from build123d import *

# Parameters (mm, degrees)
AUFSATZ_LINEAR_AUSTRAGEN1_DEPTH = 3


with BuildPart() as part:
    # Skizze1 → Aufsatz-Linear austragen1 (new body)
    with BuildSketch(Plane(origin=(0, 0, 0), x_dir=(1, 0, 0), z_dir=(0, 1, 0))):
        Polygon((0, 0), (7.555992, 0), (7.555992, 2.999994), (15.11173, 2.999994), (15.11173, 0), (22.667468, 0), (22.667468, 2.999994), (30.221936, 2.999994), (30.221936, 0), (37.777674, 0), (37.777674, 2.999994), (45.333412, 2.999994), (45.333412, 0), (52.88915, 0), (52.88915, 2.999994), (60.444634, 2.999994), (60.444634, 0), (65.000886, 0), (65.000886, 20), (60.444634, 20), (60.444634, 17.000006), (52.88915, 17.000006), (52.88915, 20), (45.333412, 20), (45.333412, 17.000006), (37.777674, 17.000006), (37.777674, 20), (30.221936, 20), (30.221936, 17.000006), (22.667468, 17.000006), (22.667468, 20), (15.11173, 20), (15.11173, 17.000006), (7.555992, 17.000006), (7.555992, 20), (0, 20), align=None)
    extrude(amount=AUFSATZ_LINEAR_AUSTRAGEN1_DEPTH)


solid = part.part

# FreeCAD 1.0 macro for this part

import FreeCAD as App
import Part
import Sketcher
from FreeCAD import Vector


def add_polygon(sketch, points):
    """Adds a closed chain of lines whose ends are joined by coincident constraints."""
    first, n = sketch.GeometryCount, len(points)
    for a, b in zip(points, points[1:] + points[:1]):
        sketch.addGeometry(Part.LineSegment(App.Vector(*a, 0), App.Vector(*b, 0)), False)
    for i in range(n):
        sketch.addConstraint(Sketcher.Constraint("Coincident", first + i, 2, first + (i + 1) % n, 1))

doc = App.newDocument("Part")
params = doc.addObject("Spreadsheet::Sheet", "Params")
for row, (alias, value) in enumerate([
    ("sketch1_height", "20 mm"),
    ("pad1_length", "3 mm"),
], start=1):
    params.set(f"A{row}", alias)
    params.set(f"B{row}", "=" + value)
    params.setAlias(f"B{row}", alias)

body = doc.addObject("PartDesign::Body", "Body")

sketch1 = doc.addObject("Sketcher::SketchObject", "Sketch")
body.addObject(sketch1)
sketch1.AttachmentSupport = (doc.XZ_Plane, [""])
sketch1.MapMode = "FlatFace"
add_polygon(sketch1, [(0, 0), (7.6, 0), (7.6, -3), (15.1, -3), (15.1, 0), (22.7, 0), (22.7, -3), (30.2, -3), (30.2, 0), (37.8, 0), (37.8, -3), (45.3, -3), (45.3, 0), (52.9, 0), (52.9, -3), (60.4, -3), (60.4, 0), (65, 0), (65, -20), (60.4, -20), (60.4, -17), (52.9, -17), (52.9, -20), (45.3, -20), (45.3, -17), (37.8, -17), (37.8, -20), (30.2, -20), (30.2, -17), (22.7, -17), (22.7, -20), (15.1, -20), (15.1, -17), (7.6, -17), (7.6, -20), (0, -20)])
sketch1.addConstraint([
    Sketcher.Constraint("Horizontal", 0),
    Sketcher.Constraint("Vertical", 1),
    Sketcher.Constraint("Horizontal", 2),
    Sketcher.Constraint("Vertical", 3),
    Sketcher.Constraint("Horizontal", 4),
    Sketcher.Constraint("Vertical", 5),
    Sketcher.Constraint("Horizontal", 6),
    Sketcher.Constraint("Vertical", 7),
    Sketcher.Constraint("Horizontal", 8),
    Sketcher.Constraint("Vertical", 9),
    Sketcher.Constraint("Horizontal", 10),
    Sketcher.Constraint("Vertical", 11),
    Sketcher.Constraint("Horizontal", 12),
    Sketcher.Constraint("Vertical", 13),
    Sketcher.Constraint("Horizontal", 14),
    Sketcher.Constraint("Vertical", 15),
    Sketcher.Constraint("Horizontal", 16),
    Sketcher.Constraint("Vertical", 17),
    Sketcher.Constraint("Horizontal", 18),
    Sketcher.Constraint("Vertical", 19),
    Sketcher.Constraint("Horizontal", 20),
    Sketcher.Constraint("Vertical", 21),
    Sketcher.Constraint("Horizontal", 22),
    Sketcher.Constraint("Vertical", 23),
    Sketcher.Constraint("Horizontal", 24),
    Sketcher.Constraint("Vertical", 25),
    Sketcher.Constraint("Horizontal", 26),
    Sketcher.Constraint("Vertical", 27),
    Sketcher.Constraint("Horizontal", 28),
    Sketcher.Constraint("Vertical", 29),
    Sketcher.Constraint("Horizontal", 30),
    Sketcher.Constraint("Vertical", 31),
    Sketcher.Constraint("Horizontal", 32),
    Sketcher.Constraint("Vertical", 33),
    Sketcher.Constraint("Horizontal", 34),
    Sketcher.Constraint("Vertical", 35),
    Sketcher.Constraint("Coincident", 35, 2, -1, 1),
    Sketcher.Constraint("PointOnObject", 3, 2, -1),
    Sketcher.Constraint("PointOnObject", 7, 2, -1),
    Sketcher.Constraint("PointOnObject", 11, 2, -1),
    Sketcher.Constraint("PointOnObject", 15, 2, -1),
    Sketcher.Constraint("Horizontal", 2, 2, 5, 2),
    Sketcher.Constraint("Horizontal", 6, 2, 9, 2),
    Sketcher.Constraint("Horizontal", 10, 2, 13, 2),
    Sketcher.Constraint("Horizontal", 18, 2, 21, 2),
    Sketcher.Constraint("Horizontal", 20, 2, 23, 2),
    Sketcher.Constraint("Horizontal", 22, 2, 25, 2),
    Sketcher.Constraint("Horizontal", 24, 2, 27, 2),
    Sketcher.Constraint("Horizontal", 26, 2, 29, 2),
    Sketcher.Constraint("Horizontal", 28, 2, 31, 2),
    Sketcher.Constraint("Horizontal", 30, 2, 33, 2),
    Sketcher.Constraint("Vertical", 15, 2, 18, 2),
    Sketcher.Constraint("Vertical", 13, 2, 20, 2),
    Sketcher.Constraint("Vertical", 11, 2, 22, 2),
    Sketcher.Constraint("Vertical", 9, 2, 24, 2),
    Sketcher.Constraint("Vertical", 7, 2, 26, 2),
    Sketcher.Constraint("Vertical", 5, 2, 28, 2),
    Sketcher.Constraint("Vertical", 3, 2, 30, 2),
    Sketcher.Constraint("Vertical", 1, 2, 32, 2),
    Sketcher.Constraint("Equal", 2, 4),
    Sketcher.Constraint("Equal", 4, 8),
    Sketcher.Constraint("Equal", 8, 10),
    Sketcher.Constraint("Equal", 10, 12),
    Sketcher.Constraint("Equal", 15, 19),
    Sketcher.Constraint("DistanceY", 17, 2, 17, 1, 20.0),
    Sketcher.Constraint("DistanceX", 0, 1, 0, 2, 7.555992),
    Sketcher.Constraint("DistanceX", 10, 1, 10, 2, 7.555738),
    Sketcher.Constraint("DistanceX", 16, 1, 16, 2, 4.556252),
    Sketcher.Constraint("DistanceX", 6, 1, 6, 2, 7.554468),
    Sketcher.Constraint("DistanceX", 14, 1, 14, 2, 7.555484),
    Sketcher.Constraint("DistanceY", 1, 2, 1, 1, 2.999994),
])
sketch1.setExpression("Constraints[100]", "Params.sketch1_height")
pad1 = doc.addObject("PartDesign::Pad", "Pad")
body.addObject(pad1)
pad1.Profile = sketch1
pad1.setExpression("Length", "Params.pad1_length")
pad1.Reversed = True

doc.recompute()
